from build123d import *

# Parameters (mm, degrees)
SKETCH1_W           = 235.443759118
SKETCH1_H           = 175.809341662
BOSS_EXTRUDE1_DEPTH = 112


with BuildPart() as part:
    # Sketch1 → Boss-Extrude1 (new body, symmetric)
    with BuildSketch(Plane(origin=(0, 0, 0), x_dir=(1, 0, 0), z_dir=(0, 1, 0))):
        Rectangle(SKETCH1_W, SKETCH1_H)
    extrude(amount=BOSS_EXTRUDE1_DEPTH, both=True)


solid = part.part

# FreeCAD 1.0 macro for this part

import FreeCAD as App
import Part
import Sketcher
Q = App.Units.Quantity

doc = App.newDocument("Part")
body = doc.addObject("PartDesign::Body", "Body")

# Sketch on XZ plane
sketch1 = body.newObject("Sketcher::SketchObject", "Sketch")
sketch1.AttachmentSupport = (doc.getObject("XZ_Plane"), [""])
sketch1.MapMode = "FlatFace"
sketch1.addGeometry(Part.LineSegment(App.Vector(-118, -88, 0), App.Vector(-118, 88, 0)), False)
sketch1.addGeometry(Part.LineSegment(App.Vector(-118, 88, 0), App.Vector(118, 88, 0)), False)
sketch1.addGeometry(Part.LineSegment(App.Vector(118, 88, 0), App.Vector(118, -88, 0)), False)
sketch1.addGeometry(Part.LineSegment(App.Vector(118, -88, 0), App.Vector(-118, -88, 0)), False)
sketch1.addConstraint(Sketcher.Constraint("Coincident", 0, 2, 1, 1))
sketch1.addConstraint(Sketcher.Constraint("Coincident", 1, 2, 2, 1))
sketch1.addConstraint(Sketcher.Constraint("Coincident", 2, 2, 3, 1))
sketch1.addConstraint(Sketcher.Constraint("Coincident", 3, 2, 0, 1))
sketch1.addConstraint(Sketcher.Constraint("Vertical", 0))
sketch1.addConstraint(Sketcher.Constraint("Horizontal", 1))
sketch1.addConstraint(Sketcher.Constraint("Vertical", 2))
sketch1.addConstraint(Sketcher.Constraint("Horizontal", 3))
sketch1.addConstraint(Sketcher.Constraint("Symmetric", 0, 2, 2, 2, -1, 1))
sketch1.addConstraint(Sketcher.Constraint("DistanceX", 1, 1, 1, 2, Q("235.443759 mm")))
sketch1.addConstraint(Sketcher.Constraint("DistanceY", 0, 1, 0, 2, Q("175.809342 mm")))
pad1 = body.newObject("PartDesign::Pad", "Pad")
pad1.Profile = sketch1
pad1.Length = 224
pad1.Midplane = True

doc.recompute()
